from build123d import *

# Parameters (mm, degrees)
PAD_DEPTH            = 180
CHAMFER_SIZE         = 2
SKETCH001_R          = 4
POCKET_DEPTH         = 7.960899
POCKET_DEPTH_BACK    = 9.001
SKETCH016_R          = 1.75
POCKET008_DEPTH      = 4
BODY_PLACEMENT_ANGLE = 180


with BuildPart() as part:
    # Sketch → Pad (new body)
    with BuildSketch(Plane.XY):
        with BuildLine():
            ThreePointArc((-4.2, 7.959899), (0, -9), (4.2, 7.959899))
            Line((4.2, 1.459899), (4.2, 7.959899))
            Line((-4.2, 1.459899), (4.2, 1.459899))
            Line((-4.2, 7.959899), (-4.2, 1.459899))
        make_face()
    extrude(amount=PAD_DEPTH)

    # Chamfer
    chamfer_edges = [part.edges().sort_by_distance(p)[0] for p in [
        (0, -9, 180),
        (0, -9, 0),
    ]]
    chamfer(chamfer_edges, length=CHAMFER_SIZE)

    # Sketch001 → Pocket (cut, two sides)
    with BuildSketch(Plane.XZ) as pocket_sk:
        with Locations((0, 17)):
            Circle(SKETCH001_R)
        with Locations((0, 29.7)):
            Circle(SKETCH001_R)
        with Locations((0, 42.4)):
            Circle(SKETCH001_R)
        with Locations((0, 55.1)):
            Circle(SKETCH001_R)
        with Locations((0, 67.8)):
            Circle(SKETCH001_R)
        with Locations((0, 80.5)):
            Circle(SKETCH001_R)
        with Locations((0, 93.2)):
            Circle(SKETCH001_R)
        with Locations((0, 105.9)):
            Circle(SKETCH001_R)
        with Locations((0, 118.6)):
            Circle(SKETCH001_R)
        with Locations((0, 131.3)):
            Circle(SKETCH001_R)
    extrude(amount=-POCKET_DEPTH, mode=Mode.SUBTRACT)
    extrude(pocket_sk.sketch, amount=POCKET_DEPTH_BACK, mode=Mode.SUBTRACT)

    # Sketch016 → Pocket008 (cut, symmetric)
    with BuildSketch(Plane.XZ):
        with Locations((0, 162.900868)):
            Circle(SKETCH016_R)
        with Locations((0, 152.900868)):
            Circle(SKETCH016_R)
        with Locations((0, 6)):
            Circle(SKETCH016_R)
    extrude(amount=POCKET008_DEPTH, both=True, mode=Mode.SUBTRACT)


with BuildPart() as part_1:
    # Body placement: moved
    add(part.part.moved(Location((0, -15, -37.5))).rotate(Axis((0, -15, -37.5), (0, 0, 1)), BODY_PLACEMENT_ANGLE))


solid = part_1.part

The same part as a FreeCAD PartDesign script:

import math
import FreeCAD as App
import Part
import Sketcher
from FreeCAD import Vector
Q = App.Units.Quantity


def edges_at(feature, points):
    """Names of the edges that pass closest to the given points."""
    edges = feature.Shape.Edges
    near = lambda p: min(range(len(edges)), key=lambda i: edges[i].distToShape(Part.Vertex(*p))[0])
    return sorted({f"Edge{near(p) + 1}" for p in points})

doc = App.newDocument("Part")
params = doc.addObject("Spreadsheet::Sheet", "Params")
for row, (alias, value) in enumerate([
    ("sketch1_radius", "9 mm"),
    ("sketch1_width", "8.4 mm"),
    ("sketch1_height", "6.5 mm"),
    ("pad1_length", "180 mm"),
    ("chamfer_size", "2 mm"),
    ("sketch2_diameter", "8 mm"),
    ("sketch3_diameter", "3.5 mm"),
    ("pocket2_length", "8 mm"),
], start=1):
    params.set(f"A{row}", alias)
    params.set(f"B{row}", "=" + value)
    params.setAlias(f"B{row}", alias)

body = doc.addObject("PartDesign::Body", "Body")

sketch1 = doc.addObject("Sketcher::SketchObject", "Sketch")
body.addObject(sketch1)
sketch1.AttachmentSupport = (doc.XY_Plane, [""])
sketch1.MapMode = "FlatFace"
sketch1.addGeometry(Part.ArcOfCircle(Part.Circle(Vector(0, 0, 0), Vector(0, 0, 1), 9), math.radians(118), math.radians(422)), False)
sketch1.addGeometry(Part.LineSegment(Vector(4, 8, 0), Vector(4, 1, 0)), False)
sketch1.addGeometry(Part.LineSegment(Vector(4, 1, 0), Vector(-4, 1, 0)), False)
sketch1.addGeometry(Part.LineSegment(Vector(-4, 1, 0), Vector(-4, 8, 0)), False)
sketch1.addConstraint(Sketcher.Constraint("Coincident", 0, 2, 1, 1))
sketch1.addConstraint(Sketcher.Constraint("Coincident", 1, 2, 2, 1))
sketch1.addConstraint(Sketcher.Constraint("Coincident", 2, 2, 3, 1))
sketch1.addConstraint(Sketcher.Constraint("Coincident", 3, 2, 0, 1))
sketch1.addConstraint(Sketcher.Constraint("Vertical", 1))
sketch1.addConstraint(Sketcher.Constraint("Horizontal", 2))
sketch1.addConstraint(Sketcher.Constraint("Vertical", 3))
sketch1.addConstraint(Sketcher.Constraint("Coincident", 0, 3, -1, 1))
sketch1.addConstraint(Sketcher.Constraint("Horizontal", 0, 2, 3, 2))
sketch1.addConstraint(Sketcher.Constraint("Radius", 0, Q("9 mm")))
sketch1.addConstraint(Sketcher.Constraint("DistanceX", 2, 2, 2, 1, Q("8.4 mm")))
sketch1.addConstraint(Sketcher.Constraint("DistanceY", 1, 2, 1, 1, Q("6.5 mm")))
sketch1.setExpression("Constraints[9]", "Params.sketch1_radius")
sketch1.setExpression("Constraints[10]", "Params.sketch1_width")
sketch1.setExpression("Constraints[11]", "Params.sketch1_height")
pad1 = doc.addObject("PartDesign::Pad", "Pad")
body.addObject(pad1)
pad1.Profile = sketch1
pad1.setExpression("Length", "Params.pad1_length")
doc.recompute()

chamfer = doc.addObject("PartDesign::Chamfer", "Chamfer")
body.addObject(chamfer)
chamfer.Base = (pad1, edges_at(pad1, [(0, -9, 180), (0, -9, 0)]))
chamfer.setExpression("Size", "Params.chamfer_size")

sketch2 = doc.addObject("Sketcher::SketchObject", "Sketch001")
body.addObject(sketch2)
sketch2.AttachmentSupport = (doc.XZ_Plane, [""])
sketch2.MapMode = "FlatFace"
sketch2.addGeometry(Part.Circle(Vector(0, 17, 0), Vector(0, 0, 1), 4), False)
sketch2.addGeometry(Part.Circle(Vector(0, 29.7, 0), Vector(0, 0, 1), 4), False)
sketch2.addGeometry(Part.Circle(Vector(0, 42.4, 0), Vector(0, 0, 1), 4), False)
sketch2.addGeometry(Part.Circle(Vector(0, 55.1, 0), Vector(0, 0, 1), 4), False)
sketch2.addGeometry(Part.Circle(Vector(0, 67.8, 0), Vector(0, 0, 1), 4), False)
sketch2.addGeometry(Part.Circle(Vector(0, 80.5, 0), Vector(0, 0, 1), 4), False)
sketch2.addGeometry(Part.Circle(Vector(0, 93.2, 0), Vector(0, 0, 1), 4), False)
sketch2.addGeometry(Part.Circle(Vector(0, 105.9, 0), Vector(0, 0, 1), 4), False)
sketch2.addGeometry(Part.Circle(Vector(0, 118.6, 0), Vector(0, 0, 1), 4), False)
sketch2.addGeometry(Part.Circle(Vector(0, 131.3, 0), Vector(0, 0, 1), 4), False)
sketch2.addConstraint(Sketcher.Constraint("Equal", 0, 1))
sketch2.addConstraint(Sketcher.Constraint("Equal", 1, 2))
sketch2.addConstraint(Sketcher.Constraint("Equal", 2, 3))
sketch2.addConstraint(Sketcher.Constraint("Equal", 3, 4))
sketch2.addConstraint(Sketcher.Constraint("Equal", 4, 5))
sketch2.addConstraint(Sketcher.Constraint("Equal", 5, 6))
sketch2.addConstraint(Sketcher.Constraint("Equal", 6, 7))
sketch2.addConstraint(Sketcher.Constraint("Equal", 7, 8))
sketch2.addConstraint(Sketcher.Constraint("Equal", 8, 9))
sketch2.addConstraint(Sketcher.Constraint("PointOnObject", 0, 3, -2))
sketch2.addConstraint(Sketcher.Constraint("PointOnObject", 1, 3, -2))
sketch2.addConstraint(Sketcher.Constraint("PointOnObject", 2, 3, -2))
sketch2.addConstraint(Sketcher.Constraint("PointOnObject", 3, 3, -2))
sketch2.addConstraint(Sketcher.Constraint("PointOnObject", 4, 3, -2))
sketch2.addConstraint(Sketcher.Constraint("PointOnObject", 5, 3, -2))
sketch2.addConstraint(Sketcher.Constraint("PointOnObject", 6, 3, -2))
sketch2.addConstraint(Sketcher.Constraint("PointOnObject", 7, 3, -2))
sketch2.addConstraint(Sketcher.Constraint("PointOnObject", 8, 3, -2))
sketch2.addConstraint(Sketcher.Constraint("PointOnObject", 9, 3, -2))
sketch2.addConstraint(Sketcher.Constraint("Diameter", 0, Q("8 mm")))
sketch2.addConstraint(Sketcher.Constraint("DistanceY", -1, 1, 0, 3, Q("17 mm")))
sketch2.addConstraint(Sketcher.Constraint("DistanceY", -1, 1, 1, 3, Q("29.7 mm")))
sketch2.addConstraint(Sketcher.Constraint("DistanceY", -1, 1, 2, 3, Q("42.4 mm")))
sketch2.addConstraint(Sketcher.Constraint("DistanceY", -1, 1, 3, 3, Q("55.1 mm")))
sketch2.addConstraint(Sketcher.Constraint("DistanceY", -1, 1, 4, 3, Q("67.8 mm")))
sketch2.addConstraint(Sketcher.Constraint("DistanceY", -1, 1, 5, 3, Q("80.5 mm")))
sketch2.addConstraint(Sketcher.Constraint("DistanceY", -1, 1, 6, 3, Q("93.2 mm")))
sketch2.addConstraint(Sketcher.Constraint("DistanceY", -1, 1, 7, 3, Q("105.9 mm")))
sketch2.addConstraint(Sketcher.Constraint("DistanceY", -1, 1, 8, 3, Q("118.6 mm")))
sketch2.addConstraint(Sketcher.Constraint("DistanceY", -1, 1, 9, 3, Q("131.3 mm")))
sketch2.setExpression("Constraints[19]", "Params.sketch2_diameter")
pocket1 = doc.addObject("PartDesign::Pocket", "Pocket")
body.addObject(pocket1)
pocket1.Profile = sketch2
pocket1.Type = "ThroughAll"
pocket1.Midplane = True

sketch3 = doc.addObject("Sketcher::SketchObject", "Sketch002")
body.addObject(sketch3)
sketch3.AttachmentSupport = (doc.XZ_Plane, [""])
sketch3.MapMode = "FlatFace"
sketch3.addGeometry(Part.Circle(Vector(0, 162.9, 0), Vector(0, 0, 1), 1.8), False)
sketch3.addGeometry(Part.Circle(Vector(0, 152.9, 0), Vector(0, 0, 1), 1.8), False)
sketch3.addGeometry(Part.Circle(Vector(0, 6, 0), Vector(0, 0, 1), 1.8), False)
sketch3.addConstraint(Sketcher.Constraint("Equal", 0, 1))
sketch3.addConstraint(Sketcher.Constraint("Equal", 1, 2))
sketch3.addConstraint(Sketcher.Constraint("PointOnObject", 0, 3, -2))
sketch3.addConstraint(Sketcher.Constraint("PointOnObject", 1, 3, -2))
sketch3.addConstraint(Sketcher.Constraint("PointOnObject", 2, 3, -2))
sketch3.addConstraint(Sketcher.Constraint("Diameter", 0, Q("3.5 mm")))
sketch3.addConstraint(Sketcher.Constraint("DistanceY", -1, 1, 2, 3, Q("6 mm")))
sketch3.addConstraint(Sketcher.Constraint("DistanceY", 1, 3, 0, 3, Q("10 mm")))
sketch3.addConstraint(Sketcher.Constraint("DistanceY", -1, 1, 0, 3, Q("162.900868 mm")))
sketch3.setExpression("Constraints[5]", "Params.sketch3_diameter")
pocket2 = doc.addObject("PartDesign::Pocket", "Pocket001")
body.addObject(pocket2)
pocket2.Profile = sketch3
pocket2.setExpression("Length", "Params.pocket2_length")
pocket2.Midplane = True
body2 = doc.addObject("PartDesign::Body", "Body001")
doc.recompute()

body.Placement = App.Placement(Vector(0, -15, -37.5), App.Rotation(Vector(0, 0, 1), 180))
boolean = doc.addObject("PartDesign::Boolean", "Boolean")
body2.addObject(boolean)
boolean.Type = "Fuse"
boolean.addObjects([body])

doc.recompute()
